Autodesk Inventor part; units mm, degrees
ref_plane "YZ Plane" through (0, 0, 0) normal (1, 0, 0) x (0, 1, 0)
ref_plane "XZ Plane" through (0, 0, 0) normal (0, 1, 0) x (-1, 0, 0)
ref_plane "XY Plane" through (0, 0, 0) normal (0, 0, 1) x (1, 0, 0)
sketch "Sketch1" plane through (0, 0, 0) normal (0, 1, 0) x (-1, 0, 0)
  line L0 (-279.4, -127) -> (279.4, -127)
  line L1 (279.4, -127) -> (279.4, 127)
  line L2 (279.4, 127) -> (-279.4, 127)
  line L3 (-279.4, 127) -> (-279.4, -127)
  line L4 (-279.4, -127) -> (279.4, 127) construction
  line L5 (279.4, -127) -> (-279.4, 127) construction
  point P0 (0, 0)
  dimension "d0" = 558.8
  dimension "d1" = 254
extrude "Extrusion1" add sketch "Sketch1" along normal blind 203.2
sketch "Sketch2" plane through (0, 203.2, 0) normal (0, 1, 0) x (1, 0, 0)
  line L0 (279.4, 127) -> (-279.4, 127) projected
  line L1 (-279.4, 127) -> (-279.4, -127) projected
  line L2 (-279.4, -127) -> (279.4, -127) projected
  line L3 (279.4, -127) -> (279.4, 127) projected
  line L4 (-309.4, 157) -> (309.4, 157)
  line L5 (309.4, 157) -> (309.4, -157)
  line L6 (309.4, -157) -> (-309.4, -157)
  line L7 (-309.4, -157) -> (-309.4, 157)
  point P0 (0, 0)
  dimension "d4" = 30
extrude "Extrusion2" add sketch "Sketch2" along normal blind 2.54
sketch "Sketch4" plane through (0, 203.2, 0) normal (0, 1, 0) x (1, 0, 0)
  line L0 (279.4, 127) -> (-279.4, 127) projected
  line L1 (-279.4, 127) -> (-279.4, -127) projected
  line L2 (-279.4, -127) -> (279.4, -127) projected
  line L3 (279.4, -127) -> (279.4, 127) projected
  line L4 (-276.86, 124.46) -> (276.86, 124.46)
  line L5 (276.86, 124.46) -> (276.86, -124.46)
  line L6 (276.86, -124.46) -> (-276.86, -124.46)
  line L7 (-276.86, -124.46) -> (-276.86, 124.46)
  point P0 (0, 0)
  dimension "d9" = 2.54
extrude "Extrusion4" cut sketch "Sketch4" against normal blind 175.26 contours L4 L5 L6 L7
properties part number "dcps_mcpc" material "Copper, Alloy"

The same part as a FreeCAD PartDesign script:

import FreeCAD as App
import Part
import Sketcher
from FreeCAD import Vector
Q = App.Units.Quantity

doc = App.newDocument("Part")
body = doc.addObject("PartDesign::Body", "Body")
body.AllowCompound = True

# Sketch on XZ plane
sketch1 = doc.addObject("Sketcher::SketchObject", "Sketch")
body.addObject(sketch1)
sketch1.AttachmentSupport = (doc.XZ_Plane, [""])
sketch1.MapMode = "FlatFace"
sketch1.addGeometry([
    Part.LineSegment(Vector(279, 127, 0), Vector(279, -127, 0)),
    Part.LineSegment(Vector(279, -127, 0), Vector(-279, -127, 0)),
    Part.LineSegment(Vector(-279, -127, 0), Vector(-279, 127, 0)),
    Part.LineSegment(Vector(-279, 127, 0), Vector(279, 127, 0)),
], False)
sketch1.addConstraint([
    Sketcher.Constraint("Coincident", 0, 2, 1, 1),
    Sketcher.Constraint("Coincident", 1, 2, 2, 1),
    Sketcher.Constraint("Coincident", 2, 2, 3, 1),
    Sketcher.Constraint("Coincident", 3, 2, 0, 1),
    Sketcher.Constraint("Vertical", 0),
    Sketcher.Constraint("Horizontal", 1),
    Sketcher.Constraint("Vertical", 2),
    Sketcher.Constraint("Horizontal", 3),
    Sketcher.Constraint("Symmetric", 0, 2, 2, 2, -1, 1),
    Sketcher.Constraint("DistanceX", 1, 2, 1, 1, Q("22 in")),
    Sketcher.Constraint("DistanceY", 0, 2, 0, 1, Q("10 in")),
])
pad1 = doc.addObject("PartDesign::Pad", "Pad")
body.addObject(pad1)
pad1.Profile = sketch1
pad1.Length = Q("8 in")
pad1.Reversed = True

# Sketch on XZ plane
sketch2 = doc.addObject("Sketcher::SketchObject", "Sketch001")
body.addObject(sketch2)
sketch2.AttachmentSupport = (doc.XZ_Plane, [""])
sketch2.MapMode = "FlatFace"
sketch2.AttachmentOffset = App.Placement(Vector(0, 0, -8 * 25.4), App.Rotation())
sketch2.addGeometry([
    Part.LineSegment(Vector(309, -157, 0), Vector(-309, -157, 0)),  # 0
    Part.LineSegment(Vector(-309, -157, 0), Vector(-309, 157, 0)),  # 1
    Part.LineSegment(Vector(-309, 157, 0), Vector(309, 157, 0)),  # 2
    Part.LineSegment(Vector(309, 157, 0), Vector(309, -157, 0)),  # 3
    Part.LineSegment(Vector(-279, -127, 0), Vector(279, -127, 0)),  # 4
    Part.LineSegment(Vector(279, -127, 0), Vector(279, 127, 0)),  # 5
    Part.LineSegment(Vector(279, 127, 0), Vector(-279, 127, 0)),  # 6
    Part.LineSegment(Vector(-279, 127, 0), Vector(-279, -127, 0)),  # 7
], False)
sketch2.addConstraint([
    Sketcher.Constraint("Coincident", 0, 2, 1, 1),
    Sketcher.Constraint("Coincident", 1, 2, 2, 1),
    Sketcher.Constraint("Coincident", 2, 2, 3, 1),
    Sketcher.Constraint("Coincident", 3, 2, 0, 1),
    Sketcher.Constraint("Coincident", 4, 2, 5, 1),
    Sketcher.Constraint("Coincident", 5, 2, 6, 1),
    Sketcher.Constraint("Coincident", 6, 2, 7, 1),
    Sketcher.Constraint("Coincident", 7, 2, 4, 1),
    Sketcher.Constraint("Horizontal", 0),
    Sketcher.Constraint("Vertical", 1),
    Sketcher.Constraint("Horizontal", 2),
    Sketcher.Constraint("Vertical", 3),
    Sketcher.Constraint("Horizontal", 4),
    Sketcher.Constraint("Vertical", 5),
    Sketcher.Constraint("Horizontal", 6),
    Sketcher.Constraint("Vertical", 7),
    Sketcher.Constraint("Symmetric", 0, 2, 2, 2, -1, 1),
    Sketcher.Constraint("Symmetric", 4, 2, 6, 2, -1, 1),
    Sketcher.Constraint("DistanceX", 4, 1, 4, 2, Q("22 in")),
    Sketcher.Constraint("DistanceY", 5, 1, 5, 2, Q("10 in")),
    Sketcher.Constraint("DistanceX", 4, 2, 3, 2, Q("1.1811 in")),
    Sketcher.Constraint("DistanceY", 3, 2, 4, 2, Q("1.1811 in")),
])
pad2 = doc.addObject("PartDesign::Pad", "Pad001")
body.addObject(pad2)
pad2.Profile = sketch2
pad2.Length = Q("0.1 in")
pad2.Reversed = True

# Sketch on XZ plane
sketch3 = doc.addObject("Sketcher::SketchObject", "Sketch002")
body.addObject(sketch3)
sketch3.AttachmentSupport = (doc.XZ_Plane, [""])
sketch3.MapMode = "FlatFace"
sketch3.AttachmentOffset = App.Placement(Vector(0, 0, -8 * 25.4), App.Rotation())
sketch3.addGeometry([
    Part.LineSegment(Vector(277, -124, 0), Vector(-277, -124, 0)),
    Part.LineSegment(Vector(-277, -124, 0), Vector(-277, 124, 0)),
    Part.LineSegment(Vector(-277, 124, 0), Vector(277, 124, 0)),
    Part.LineSegment(Vector(277, 124, 0), Vector(277, -124, 0)),
], False)
sketch3.addConstraint([
    Sketcher.Constraint("Coincident", 0, 2, 1, 1),
    Sketcher.Constraint("Coincident", 1, 2, 2, 1),
    Sketcher.Constraint("Coincident", 2, 2, 3, 1),
    Sketcher.Constraint("Coincident", 3, 2, 0, 1),
    Sketcher.Constraint("Horizontal", 0),
    Sketcher.Constraint("Vertical", 1),
    Sketcher.Constraint("Horizontal", 2),
    Sketcher.Constraint("Vertical", 3),
    Sketcher.Constraint("Symmetric", 0, 2, 2, 2, -1, 1),
    Sketcher.Constraint("DistanceX", 0, 2, 0, 1, Q("21.8 in")),
    Sketcher.Constraint("DistanceY", 1, 1, 1, 2, Q("9.8 in")),
])
pocket1 = doc.addObject("PartDesign::Pocket", "Pocket")
body.addObject(pocket1)
pocket1.Profile = sketch3
pocket1.Length = Q("6.9 in")
pocket1.Reversed = True

doc.recompute()
